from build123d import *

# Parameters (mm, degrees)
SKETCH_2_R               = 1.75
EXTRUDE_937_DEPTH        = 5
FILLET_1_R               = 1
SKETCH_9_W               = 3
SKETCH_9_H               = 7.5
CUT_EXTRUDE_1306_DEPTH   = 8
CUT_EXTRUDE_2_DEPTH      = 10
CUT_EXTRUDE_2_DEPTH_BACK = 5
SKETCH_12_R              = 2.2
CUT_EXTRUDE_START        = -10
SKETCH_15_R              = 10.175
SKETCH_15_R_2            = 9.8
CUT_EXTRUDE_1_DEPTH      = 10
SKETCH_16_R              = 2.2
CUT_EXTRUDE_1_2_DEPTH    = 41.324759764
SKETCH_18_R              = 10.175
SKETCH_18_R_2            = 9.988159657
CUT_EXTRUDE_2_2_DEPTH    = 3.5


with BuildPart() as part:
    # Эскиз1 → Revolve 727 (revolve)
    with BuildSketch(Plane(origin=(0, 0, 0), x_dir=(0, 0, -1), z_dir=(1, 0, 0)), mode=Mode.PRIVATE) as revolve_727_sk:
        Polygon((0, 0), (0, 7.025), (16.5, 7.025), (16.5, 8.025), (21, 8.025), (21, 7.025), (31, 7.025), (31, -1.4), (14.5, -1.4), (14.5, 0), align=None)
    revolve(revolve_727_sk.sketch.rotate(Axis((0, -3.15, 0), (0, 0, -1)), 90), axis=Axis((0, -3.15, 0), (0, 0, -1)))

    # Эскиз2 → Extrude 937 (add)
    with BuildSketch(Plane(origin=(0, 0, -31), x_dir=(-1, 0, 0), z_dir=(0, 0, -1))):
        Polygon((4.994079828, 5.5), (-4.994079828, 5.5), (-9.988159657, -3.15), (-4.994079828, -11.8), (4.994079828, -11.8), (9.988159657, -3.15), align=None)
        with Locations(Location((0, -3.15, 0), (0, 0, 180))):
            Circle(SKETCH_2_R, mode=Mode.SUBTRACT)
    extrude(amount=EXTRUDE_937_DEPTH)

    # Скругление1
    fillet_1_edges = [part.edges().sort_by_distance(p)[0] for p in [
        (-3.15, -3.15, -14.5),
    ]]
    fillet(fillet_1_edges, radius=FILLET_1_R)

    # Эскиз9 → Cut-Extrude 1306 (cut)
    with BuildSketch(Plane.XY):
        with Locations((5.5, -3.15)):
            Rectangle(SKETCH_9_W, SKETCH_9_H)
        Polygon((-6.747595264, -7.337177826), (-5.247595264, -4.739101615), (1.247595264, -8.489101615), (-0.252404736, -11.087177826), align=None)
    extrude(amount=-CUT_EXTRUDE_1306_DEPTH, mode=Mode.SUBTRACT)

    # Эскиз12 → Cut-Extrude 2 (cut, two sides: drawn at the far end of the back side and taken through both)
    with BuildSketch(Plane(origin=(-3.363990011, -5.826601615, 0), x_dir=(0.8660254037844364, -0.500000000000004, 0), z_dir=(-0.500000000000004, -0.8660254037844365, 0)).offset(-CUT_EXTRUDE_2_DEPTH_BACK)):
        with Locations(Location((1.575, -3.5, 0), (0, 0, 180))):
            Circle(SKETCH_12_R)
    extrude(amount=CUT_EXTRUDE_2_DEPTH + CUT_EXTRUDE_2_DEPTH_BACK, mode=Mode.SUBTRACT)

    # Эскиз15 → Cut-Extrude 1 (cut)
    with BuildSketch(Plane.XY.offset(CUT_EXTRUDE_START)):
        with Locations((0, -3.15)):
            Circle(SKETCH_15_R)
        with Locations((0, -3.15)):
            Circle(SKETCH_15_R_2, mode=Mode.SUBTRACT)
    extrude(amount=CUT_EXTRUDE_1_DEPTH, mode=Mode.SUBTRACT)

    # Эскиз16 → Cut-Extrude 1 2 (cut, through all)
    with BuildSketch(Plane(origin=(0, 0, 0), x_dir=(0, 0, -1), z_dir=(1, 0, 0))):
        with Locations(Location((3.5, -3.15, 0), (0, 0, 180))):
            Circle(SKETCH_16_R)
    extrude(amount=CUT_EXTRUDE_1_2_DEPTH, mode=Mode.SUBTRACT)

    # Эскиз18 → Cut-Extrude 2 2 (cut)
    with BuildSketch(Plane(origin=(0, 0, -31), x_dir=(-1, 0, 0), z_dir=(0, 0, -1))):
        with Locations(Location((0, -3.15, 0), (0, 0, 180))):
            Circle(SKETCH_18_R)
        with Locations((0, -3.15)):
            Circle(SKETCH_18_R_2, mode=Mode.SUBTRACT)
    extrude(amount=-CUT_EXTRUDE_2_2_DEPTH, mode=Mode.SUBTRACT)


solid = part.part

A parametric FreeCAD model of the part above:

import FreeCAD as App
import Part
import Sketcher
Q = App.Units.Quantity


def edges_at(feature, points):
    """Names of the edges that pass closest to the given points."""
    edges = feature.Shape.Edges
    near = lambda p: min(range(len(edges)), key=lambda i: edges[i].distToShape(Part.Vertex(*p))[0])
    return sorted({f"Edge{near(p) + 1}" for p in points})

doc = App.newDocument("Part")
body = doc.addObject("PartDesign::Body", "Body")

sketch1 = body.newObject("Sketcher::SketchObject", "Sketch")
sketch1.AttachmentSupport = (doc.getObject("YZ_Plane"), [""])
sketch1.MapMode = "FlatFace"
sketch1.addGeometry([
    Part.LineSegment(App.Vector(7, 0, 0), App.Vector(0, 0, 0)),
    Part.LineSegment(App.Vector(0, 0, 0), App.Vector(0, -14.5, 0)),
    Part.LineSegment(App.Vector(0, -14.5, 0), App.Vector(-1.4, -14.5, 0)),
    Part.LineSegment(App.Vector(-1.4, -14.5, 0), App.Vector(-1.4, -31, 0)),
    Part.LineSegment(App.Vector(-1.4, -31, 0), App.Vector(7, -31, 0)),
    Part.LineSegment(App.Vector(7, -31, 0), App.Vector(7, -21, 0)),
    Part.LineSegment(App.Vector(7, -21, 0), App.Vector(8, -21, 0)),
    Part.LineSegment(App.Vector(8, -21, 0), App.Vector(8, -16.5, 0)),
    Part.LineSegment(App.Vector(8, -16.5, 0), App.Vector(7, -16.5, 0)),
    Part.LineSegment(App.Vector(7, -16.5, 0), App.Vector(7, 0, 0)),
], False)
sketch1.addGeometry(Part.LineSegment(App.Vector(-3.1, 0, 0), App.Vector(-3.1, -31, 0)), True)
sketch1.addConstraint([
    Sketcher.Constraint("Coincident", 0, 2, 1, 1),
    Sketcher.Constraint("Coincident", 1, 2, 2, 1),
    Sketcher.Constraint("Coincident", 2, 2, 3, 1),
    Sketcher.Constraint("Coincident", 3, 2, 4, 1),
    Sketcher.Constraint("Coincident", 4, 2, 5, 1),
    Sketcher.Constraint("Coincident", 5, 2, 6, 1),
    Sketcher.Constraint("Coincident", 6, 2, 7, 1),
    Sketcher.Constraint("Coincident", 7, 2, 8, 1),
    Sketcher.Constraint("Coincident", 8, 2, 9, 1),
    Sketcher.Constraint("Coincident", 9, 2, 0, 1),
    Sketcher.Constraint("Horizontal", 0),
    Sketcher.Constraint("Vertical", 1),
    Sketcher.Constraint("Horizontal", 2),
    Sketcher.Constraint("Vertical", 3),
    Sketcher.Constraint("Horizontal", 4),
    Sketcher.Constraint("Vertical", 5),
    Sketcher.Constraint("Horizontal", 6),
    Sketcher.Constraint("Vertical", 7),
    Sketcher.Constraint("Horizontal", 8),
    Sketcher.Constraint("Vertical", 9),
    Sketcher.Constraint("Vertical", 10),
    Sketcher.Constraint("Coincident", 0, 2, -1, 1),
    Sketcher.Constraint("PointOnObject", 10, 1, -1),
    Sketcher.Constraint("Horizontal", 4, 2, 10, 2),
    Sketcher.Constraint("Vertical", 5, 2, 8, 2),
    Sketcher.Constraint("Equal", 3, 9),
    Sketcher.Constraint("DistanceX", 6, 1, 6, 2, Q("1 mm")),
    Sketcher.Constraint("DistanceY", 5, 1, 5, 2, Q("10 mm")),
    Sketcher.Constraint("DistanceY", 10, 2, 10, 1, Q("31 mm")),
    Sketcher.Constraint("DistanceX", 2, 2, 2, 1, Q("1.4 mm")),
    Sketcher.Constraint("DistanceY", 1, 2, 1, 1, Q("14.5 mm")),
    Sketcher.Constraint("DistanceX", 0, 2, 0, 1, Q("7.025 mm")),
    Sketcher.Constraint("DistanceX", 10, 1, -1, 1, Q("3.15 mm")),
])
revolution = body.newObject("PartDesign::Revolution", "Revolution")
revolution.Profile = sketch1
revolution.ReferenceAxis = (sketch1, ["Axis0"])
revolution.Angle = 360

sketch2 = body.newObject("Sketcher::SketchObject", "Sketch001")
sketch2.AttachmentSupport = (doc.getObject("XY_Plane"), [""])
sketch2.MapMode = "FlatFace"
sketch2.AttachmentOffset = App.Placement(App.Vector(0, 0, -31), App.Rotation())
sketch2.addGeometry([
    Part.LineSegment(App.Vector(-5, 5.5, 0), App.Vector(5, 5.5, 0)),
    Part.LineSegment(App.Vector(5, 5.5, 0), App.Vector(10, -3.1, 0)),
    Part.LineSegment(App.Vector(10, -3.1, 0), App.Vector(5, -11.8, 0)),
    Part.LineSegment(App.Vector(5, -11.8, 0), App.Vector(-5, -11.8, 0)),
    Part.LineSegment(App.Vector(-5, -11.8, 0), App.Vector(-10, -3.1, 0)),
    Part.LineSegment(App.Vector(-10, -3.1, 0), App.Vector(-5, 5.5, 0)),
    Part.Circle(App.Vector(0, -3.1, 0), App.Vector(0, 0, 1), 1.8),
], False)
sketch2.addConstraint([
    Sketcher.Constraint("Coincident", 0, 2, 1, 1),
    Sketcher.Constraint("Coincident", 1, 2, 2, 1),
    Sketcher.Constraint("Coincident", 2, 2, 3, 1),
    Sketcher.Constraint("Coincident", 3, 2, 4, 1),
    Sketcher.Constraint("Coincident", 4, 2, 5, 1),
    Sketcher.Constraint("Coincident", 5, 2, 0, 1),
    Sketcher.Constraint("Horizontal", 0),
    Sketcher.Constraint("Horizontal", 3),
    Sketcher.Constraint("Symmetric", 1, 2, 4, 2, -2),
    Sketcher.Constraint("PointOnObject", 6, 3, -2),
    Sketcher.Constraint("Parallel", 1, 4),
    Sketcher.Constraint("Parallel", 2, 5),
    Sketcher.Constraint("Horizontal", 6, 3, 1, 2),
    Sketcher.Constraint("Vertical", 0, 2, 2, 2),
    Sketcher.Constraint("Vertical", 3, 2, 5, 2),
    Sketcher.Constraint("Diameter", 6, Q("3.5 mm")),
    Sketcher.Constraint("Angle", 1, Q("-60 deg")),
    Sketcher.Constraint("DistanceY", -1, 1, 0, 2, Q("5.5 mm")),
    Sketcher.Constraint("DistanceY", 2, 2, -1, 1, Q("11.8 mm")),
    Sketcher.Constraint("DistanceX", 0, 1, 0, 2, Q("9.98816 mm")),
])
pad1 = body.newObject("PartDesign::Pad", "Pad")
pad1.Profile = sketch2
pad1.Length = 5
pad1.Reversed = True
doc.recompute()

fillet = body.newObject("PartDesign::Fillet", "Fillet")
fillet.Base = (pad1, edges_at(pad1, [(-3.15, -3.15, -14.5)]))
fillet.Radius = 1

sketch3 = body.newObject("Sketcher::SketchObject", "Sketch002")
sketch3.AttachmentSupport = (doc.getObject("XY_Plane"), [""])
sketch3.MapMode = "FlatFace"
sketch3.addGeometry([
    Part.LineSegment(App.Vector(4, 0.6, 0), App.Vector(4, -6.9, 0)),
    Part.LineSegment(App.Vector(4, -6.9, 0), App.Vector(7, -6.9, 0)),
    Part.LineSegment(App.Vector(7, -6.9, 0), App.Vector(7, 0.6, 0)),
    Part.LineSegment(App.Vector(7, 0.6, 0), App.Vector(4, 0.6, 0)),
    Part.LineSegment(App.Vector(-5.2, -4.7, 0), App.Vector(-6.7, -7.3, 0)),
    Part.LineSegment(App.Vector(-6.7, -7.3, 0), App.Vector(-0.3, -11.1, 0)),
    Part.LineSegment(App.Vector(-0.3, -11.1, 0), App.Vector(1.2, -8.5, 0)),
    Part.LineSegment(App.Vector(1.2, -8.5, 0), App.Vector(-5.2, -4.7, 0)),
], False)
sketch3.addConstraint([
    Sketcher.Constraint("Coincident", 0, 2, 1, 1),
    Sketcher.Constraint("Coincident", 1, 2, 2, 1),
    Sketcher.Constraint("Coincident", 2, 2, 3, 1),
    Sketcher.Constraint("Coincident", 3, 2, 0, 1),
    Sketcher.Constraint("Coincident", 4, 2, 5, 1),
    Sketcher.Constraint("Coincident", 5, 2, 6, 1),
    Sketcher.Constraint("Coincident", 6, 2, 7, 1),
    Sketcher.Constraint("Coincident", 7, 2, 4, 1),
    Sketcher.Constraint("Vertical", 0),
    Sketcher.Constraint("Horizontal", 1),
    Sketcher.Constraint("Vertical", 2),
    Sketcher.Constraint("Horizontal", 3),
    Sketcher.Constraint("Perpendicular", 4, 5),
    Sketcher.Constraint("Perpendicular", 5, 6),
    Sketcher.Constraint("Perpendicular", 6, 7),
    Sketcher.Constraint("DistanceX", 1, 1, 1, 2, Q("3 mm")),
    Sketcher.Constraint("Angle", 4, Q("-120 deg")),
    Sketcher.Constraint("Distance", 4, Q("3 mm")),
    Sketcher.Constraint("DistanceY", 0, 2, 0, 1, Q("7.5 mm")),
    Sketcher.Constraint("DistanceX", -1, 1, 0, 2, Q("4 mm")),
    Sketcher.Constraint("Distance", 5, Q("7.5 mm")),
    Sketcher.Constraint("DistanceY", 0, 2, -1, 1, Q("6.9 mm")),
    Sketcher.Constraint("DistanceY", 6, 2, -1, 1, Q("8.489102 mm")),
    Sketcher.Constraint("DistanceX", 4, 2, -1, 1, Q("6.747595 mm")),
])
pocket1 = body.newObject("PartDesign::Pocket", "Pocket")
pocket1.Profile = sketch3
pocket1.Length = 8

sketch4 = body.newObject("Sketcher::SketchObject", "Sketch003")
sketch4.Placement = App.Placement(App.Vector(-3.36399, -5.826602, 0), App.Rotation(App.Vector(0.866025404, -0.5, 0), App.Vector(0, 0, 1), App.Vector(-0.5, -0.866025404, 0), "ZXY"))
sketch4.addGeometry(Part.Circle(App.Vector(1.6, -3.5, 0), App.Vector(0, 0, 1), 2.2), False)
sketch4.addConstraint([
    Sketcher.Constraint("Diameter", 0, Q("4.4 mm")),
    Sketcher.Constraint("DistanceY", 0, 3, -1, 1, Q("3.5 mm")),
    Sketcher.Constraint("DistanceX", -1, 1, 0, 3, Q("1.575 mm")),
])
pocket2 = body.newObject("PartDesign::Pocket", "Pocket001")
pocket2.Profile = sketch4
pocket2.Type = "TwoLengths"
pocket2.Length = 10
pocket2.Length2 = 5
pocket2.Reversed = True

sketch5 = body.newObject("Sketcher::SketchObject", "Sketch004")
sketch5.AttachmentSupport = (doc.getObject("XY_Plane"), [""])
sketch5.MapMode = "FlatFace"
sketch5.AttachmentOffset = App.Placement(App.Vector(0, 0, -10), App.Rotation())
sketch5.addGeometry([
    Part.Circle(App.Vector(0, -3, 0), App.Vector(0, 0, 1), 10),
    Part.Circle(App.Vector(0, -3, 0), App.Vector(0, 0, 1), 10),
], False)
sketch5.addConstraint([
    Sketcher.Constraint("Coincident", 1, 3, 0, 3),
    Sketcher.Constraint("PointOnObject", 0, 3, -2),
    Sketcher.Constraint("Diameter", 1, Q("19.6 mm")),
    Sketcher.Constraint("Diameter", 0, Q("20.35 mm")),
    Sketcher.Constraint("DistanceY", 0, 3, -1, 1, Q("3.15 mm")),
])
pocket3 = body.newObject("PartDesign::Pocket", "Pocket002")
pocket3.Profile = sketch5
pocket3.Length = 10
pocket3.Reversed = True

sketch6 = body.newObject("Sketcher::SketchObject", "Sketch005")
sketch6.AttachmentSupport = (doc.getObject("YZ_Plane"), [""])
sketch6.MapMode = "FlatFace"
sketch6.addGeometry(Part.Circle(App.Vector(-3.1, -3.5, 0), App.Vector(0, 0, 1), 2.2), False)
sketch6.addConstraint([
    Sketcher.Constraint("Diameter", 0, Q("4.4 mm")),
    Sketcher.Constraint("DistanceY", 0, 3, -1, 1, Q("3.5 mm")),
    Sketcher.Constraint("DistanceX", 0, 3, -1, 1, Q("3.15 mm")),
])
pocket4 = body.newObject("PartDesign::Pocket", "Pocket003")
pocket4.Profile = sketch6
pocket4.Type = "ThroughAll"
pocket4.Reversed = True

sketch7 = body.newObject("Sketcher::SketchObject", "Sketch006")
sketch7.AttachmentSupport = (doc.getObject("XY_Plane"), [""])
sketch7.MapMode = "FlatFace"
sketch7.AttachmentOffset = App.Placement(App.Vector(0, 0, -31), App.Rotation())
sketch7.addGeometry([
    Part.Circle(App.Vector(0, -3, 0), App.Vector(0, 0, 1), 10),
    Part.Circle(App.Vector(0, -3, 0), App.Vector(0, 0, 1), 10),
], False)
sketch7.addConstraint([
    Sketcher.Constraint("Coincident", 1, 3, 0, 3),
    Sketcher.Constraint("PointOnObject", 0, 3, -2),
    Sketcher.Constraint("Diameter", 0, Q("20.35 mm")),
    Sketcher.Constraint("Diameter", 1, Q("19.976319 mm")),
    Sketcher.Constraint("DistanceY", 0, 3, -1, 1, Q("3.15 mm")),
])
pocket5 = body.newObject("PartDesign::Pocket", "Pocket004")
pocket5.Profile = sketch7
pocket5.Length = 3.5
pocket5.Reversed = True

doc.recompute()
